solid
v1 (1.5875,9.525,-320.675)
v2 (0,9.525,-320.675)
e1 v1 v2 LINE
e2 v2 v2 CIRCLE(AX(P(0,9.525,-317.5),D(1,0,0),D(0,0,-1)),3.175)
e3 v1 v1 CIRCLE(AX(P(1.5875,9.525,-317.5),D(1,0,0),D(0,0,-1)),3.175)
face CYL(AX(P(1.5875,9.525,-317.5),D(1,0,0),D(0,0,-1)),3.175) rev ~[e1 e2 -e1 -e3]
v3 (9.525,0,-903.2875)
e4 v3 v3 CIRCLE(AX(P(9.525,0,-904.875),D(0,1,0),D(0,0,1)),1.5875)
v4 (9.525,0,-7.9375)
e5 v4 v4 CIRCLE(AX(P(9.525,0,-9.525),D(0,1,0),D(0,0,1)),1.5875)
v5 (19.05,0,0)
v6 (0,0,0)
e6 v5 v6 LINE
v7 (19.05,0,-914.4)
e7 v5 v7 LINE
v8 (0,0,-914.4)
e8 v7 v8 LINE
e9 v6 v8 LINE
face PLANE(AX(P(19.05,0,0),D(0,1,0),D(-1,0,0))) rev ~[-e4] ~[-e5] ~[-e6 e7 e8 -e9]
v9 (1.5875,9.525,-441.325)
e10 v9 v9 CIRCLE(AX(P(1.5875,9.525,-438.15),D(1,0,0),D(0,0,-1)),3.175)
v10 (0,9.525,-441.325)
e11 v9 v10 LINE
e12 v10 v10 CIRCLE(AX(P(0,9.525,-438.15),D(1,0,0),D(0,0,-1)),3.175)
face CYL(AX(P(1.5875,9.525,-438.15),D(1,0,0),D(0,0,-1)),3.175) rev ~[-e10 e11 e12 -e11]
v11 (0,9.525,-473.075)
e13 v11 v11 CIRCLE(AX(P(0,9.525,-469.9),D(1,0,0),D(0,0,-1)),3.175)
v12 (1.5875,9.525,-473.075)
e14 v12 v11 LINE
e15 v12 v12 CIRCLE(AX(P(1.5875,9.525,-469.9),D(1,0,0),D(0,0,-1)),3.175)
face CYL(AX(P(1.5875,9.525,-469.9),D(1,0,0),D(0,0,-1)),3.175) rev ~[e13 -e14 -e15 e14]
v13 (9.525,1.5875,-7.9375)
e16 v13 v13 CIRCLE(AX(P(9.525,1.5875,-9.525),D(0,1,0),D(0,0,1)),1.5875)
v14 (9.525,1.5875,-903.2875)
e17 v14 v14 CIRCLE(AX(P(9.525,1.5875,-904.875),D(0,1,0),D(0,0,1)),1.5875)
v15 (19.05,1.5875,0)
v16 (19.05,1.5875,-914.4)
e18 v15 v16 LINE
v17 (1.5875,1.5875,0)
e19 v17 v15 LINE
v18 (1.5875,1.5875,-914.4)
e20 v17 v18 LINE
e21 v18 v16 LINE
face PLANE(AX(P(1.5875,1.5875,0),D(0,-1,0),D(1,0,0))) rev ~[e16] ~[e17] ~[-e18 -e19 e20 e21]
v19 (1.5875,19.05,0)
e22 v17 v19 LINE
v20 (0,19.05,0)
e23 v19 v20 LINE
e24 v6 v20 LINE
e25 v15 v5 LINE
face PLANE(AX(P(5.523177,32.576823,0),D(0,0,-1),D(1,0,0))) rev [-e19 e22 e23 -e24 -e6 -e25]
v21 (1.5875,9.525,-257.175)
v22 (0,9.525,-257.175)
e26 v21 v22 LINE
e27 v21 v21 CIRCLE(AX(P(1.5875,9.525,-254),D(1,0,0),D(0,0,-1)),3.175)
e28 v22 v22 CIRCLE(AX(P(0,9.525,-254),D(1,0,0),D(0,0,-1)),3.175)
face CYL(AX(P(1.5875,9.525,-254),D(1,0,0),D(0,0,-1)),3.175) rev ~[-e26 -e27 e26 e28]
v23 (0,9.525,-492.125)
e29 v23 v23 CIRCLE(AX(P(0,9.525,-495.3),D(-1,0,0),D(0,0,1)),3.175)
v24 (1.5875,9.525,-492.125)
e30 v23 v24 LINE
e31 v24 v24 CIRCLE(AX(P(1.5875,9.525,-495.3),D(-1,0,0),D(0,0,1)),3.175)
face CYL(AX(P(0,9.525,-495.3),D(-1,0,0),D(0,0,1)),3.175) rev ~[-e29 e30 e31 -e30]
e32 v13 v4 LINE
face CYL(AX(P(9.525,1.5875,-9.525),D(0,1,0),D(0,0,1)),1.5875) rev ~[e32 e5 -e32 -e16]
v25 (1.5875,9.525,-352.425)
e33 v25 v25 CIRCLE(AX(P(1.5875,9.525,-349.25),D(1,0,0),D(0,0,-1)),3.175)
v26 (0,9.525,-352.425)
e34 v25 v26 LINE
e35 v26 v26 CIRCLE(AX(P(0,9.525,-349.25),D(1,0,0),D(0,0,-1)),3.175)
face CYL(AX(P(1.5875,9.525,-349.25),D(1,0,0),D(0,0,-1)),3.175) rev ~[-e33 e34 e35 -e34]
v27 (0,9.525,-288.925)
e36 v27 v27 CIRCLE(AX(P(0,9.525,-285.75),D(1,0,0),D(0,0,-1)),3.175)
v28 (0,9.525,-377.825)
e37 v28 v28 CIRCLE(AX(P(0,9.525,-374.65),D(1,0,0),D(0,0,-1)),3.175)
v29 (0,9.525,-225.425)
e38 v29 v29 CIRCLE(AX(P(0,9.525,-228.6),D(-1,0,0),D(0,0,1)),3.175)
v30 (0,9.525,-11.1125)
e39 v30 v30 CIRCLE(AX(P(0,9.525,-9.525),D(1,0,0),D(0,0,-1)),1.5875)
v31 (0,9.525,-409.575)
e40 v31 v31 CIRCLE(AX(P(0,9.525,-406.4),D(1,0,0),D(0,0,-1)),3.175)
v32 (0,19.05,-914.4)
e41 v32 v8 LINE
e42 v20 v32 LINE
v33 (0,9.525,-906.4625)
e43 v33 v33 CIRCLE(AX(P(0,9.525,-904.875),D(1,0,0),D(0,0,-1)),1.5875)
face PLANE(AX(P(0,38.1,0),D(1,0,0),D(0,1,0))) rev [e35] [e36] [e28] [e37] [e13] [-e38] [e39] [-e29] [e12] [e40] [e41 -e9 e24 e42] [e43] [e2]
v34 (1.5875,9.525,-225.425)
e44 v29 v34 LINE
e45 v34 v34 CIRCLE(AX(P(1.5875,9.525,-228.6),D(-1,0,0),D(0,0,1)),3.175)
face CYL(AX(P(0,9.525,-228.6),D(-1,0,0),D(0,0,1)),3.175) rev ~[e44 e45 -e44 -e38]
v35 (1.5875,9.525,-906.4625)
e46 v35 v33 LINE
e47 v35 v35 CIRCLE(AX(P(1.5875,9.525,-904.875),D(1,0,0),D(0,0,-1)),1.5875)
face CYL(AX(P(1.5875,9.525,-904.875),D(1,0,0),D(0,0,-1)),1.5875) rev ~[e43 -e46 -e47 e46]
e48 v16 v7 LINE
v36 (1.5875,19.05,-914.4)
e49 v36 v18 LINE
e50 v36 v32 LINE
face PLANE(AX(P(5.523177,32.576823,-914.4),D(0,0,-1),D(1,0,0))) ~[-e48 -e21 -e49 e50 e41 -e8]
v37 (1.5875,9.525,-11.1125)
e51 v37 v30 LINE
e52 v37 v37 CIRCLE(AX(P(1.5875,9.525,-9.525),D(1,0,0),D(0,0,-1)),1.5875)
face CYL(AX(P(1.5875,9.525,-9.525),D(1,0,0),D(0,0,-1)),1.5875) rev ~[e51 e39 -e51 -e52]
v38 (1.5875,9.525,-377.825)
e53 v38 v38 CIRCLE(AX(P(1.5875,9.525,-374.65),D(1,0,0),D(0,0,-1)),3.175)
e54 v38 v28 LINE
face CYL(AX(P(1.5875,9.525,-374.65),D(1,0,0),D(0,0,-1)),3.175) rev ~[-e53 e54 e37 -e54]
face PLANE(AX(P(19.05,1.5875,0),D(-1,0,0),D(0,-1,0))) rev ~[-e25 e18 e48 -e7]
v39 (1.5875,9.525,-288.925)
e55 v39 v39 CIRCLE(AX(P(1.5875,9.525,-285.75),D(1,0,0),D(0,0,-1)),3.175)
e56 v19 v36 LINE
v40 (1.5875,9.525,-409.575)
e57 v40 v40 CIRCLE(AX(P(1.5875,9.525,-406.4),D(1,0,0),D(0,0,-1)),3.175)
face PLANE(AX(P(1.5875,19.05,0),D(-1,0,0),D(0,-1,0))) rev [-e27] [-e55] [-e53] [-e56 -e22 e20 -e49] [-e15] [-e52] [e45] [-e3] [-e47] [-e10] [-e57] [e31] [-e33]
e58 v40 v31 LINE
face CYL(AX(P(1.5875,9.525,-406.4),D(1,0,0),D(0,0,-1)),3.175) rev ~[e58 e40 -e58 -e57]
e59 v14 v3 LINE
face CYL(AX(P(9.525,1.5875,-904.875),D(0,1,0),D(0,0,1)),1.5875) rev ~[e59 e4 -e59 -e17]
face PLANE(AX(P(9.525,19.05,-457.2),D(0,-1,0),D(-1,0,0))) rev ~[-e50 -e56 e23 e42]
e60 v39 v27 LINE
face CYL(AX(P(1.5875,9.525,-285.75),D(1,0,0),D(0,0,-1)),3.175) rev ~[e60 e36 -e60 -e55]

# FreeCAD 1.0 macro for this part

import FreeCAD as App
import Part
import Sketcher
Q = App.Units.Quantity

doc = App.newDocument("Part")
body = doc.addObject("PartDesign::Body", "Body")

# Sketch on XY plane
sketch1 = body.newObject("Sketcher::SketchObject", "Sketch")
sketch1.AttachmentSupport = (doc.getObject("XY_Plane"), [""])
sketch1.MapMode = "FlatFace"
sketch1.addGeometry(Part.LineSegment(App.Vector(0, 19.1, 0), App.Vector(0, 0, 0)), False)
sketch1.addGeometry(Part.LineSegment(App.Vector(0, 0, 0), App.Vector(19.1, 0, 0)), False)
sketch1.addGeometry(Part.LineSegment(App.Vector(19.1, 0, 0), App.Vector(19.1, 1.6, 0)), False)
sketch1.addGeometry(Part.LineSegment(App.Vector(19.1, 1.6, 0), App.Vector(1.6, 1.6, 0)), False)
sketch1.addGeometry(Part.LineSegment(App.Vector(1.6, 1.6, 0), App.Vector(1.6, 19.1, 0)), False)
sketch1.addGeometry(Part.LineSegment(App.Vector(1.6, 19.1, 0), App.Vector(0, 19.1, 0)), False)
sketch1.addConstraint(Sketcher.Constraint("Coincident", 0, 2, 1, 1))
sketch1.addConstraint(Sketcher.Constraint("Coincident", 1, 2, 2, 1))
sketch1.addConstraint(Sketcher.Constraint("Coincident", 2, 2, 3, 1))
sketch1.addConstraint(Sketcher.Constraint("Coincident", 3, 2, 4, 1))
sketch1.addConstraint(Sketcher.Constraint("Coincident", 4, 2, 5, 1))
sketch1.addConstraint(Sketcher.Constraint("Coincident", 5, 2, 0, 1))
sketch1.addConstraint(Sketcher.Constraint("Vertical", 0))
sketch1.addConstraint(Sketcher.Constraint("Horizontal", 1))
sketch1.addConstraint(Sketcher.Constraint("Vertical", 2))
sketch1.addConstraint(Sketcher.Constraint("Horizontal", 3))
sketch1.addConstraint(Sketcher.Constraint("Vertical", 4))
sketch1.addConstraint(Sketcher.Constraint("Horizontal", 5))
sketch1.addConstraint(Sketcher.Constraint("Coincident", 0, 2, -1, 1))
sketch1.addConstraint(Sketcher.Constraint("Equal", 1, 0))
sketch1.addConstraint(Sketcher.Constraint("Equal", 5, 2))
sketch1.addConstraint(Sketcher.Constraint("DistanceX", 1, 1, 1, 2, Q("0.75 in")))
sketch1.addConstraint(Sketcher.Constraint("DistanceX", 3, 2, 3, 1, Q("0.6875 in")))
pad1 = body.newObject("PartDesign::Pad", "Pad")
pad1.Profile = sketch1
pad1.Length = Q("36 in")
pad1.Reversed = True

# Sketch on XZ plane
sketch2 = body.newObject("Sketcher::SketchObject", "Sketch001")
sketch2.AttachmentSupport = (doc.getObject("XZ_Plane"), [""])
sketch2.MapMode = "FlatFace"
sketch2.AttachmentOffset = App.Placement(App.Vector(0, 0, -0.0625 * 25.4), App.Rotation())
sketch2.addGeometry(Part.Circle(App.Vector(9.5, -9.5, 0), App.Vector(0, 0, 1), 1.6), False)
sketch2.addGeometry(Part.Circle(App.Vector(9.5, -904.9, 0), App.Vector(0, 0, 1), 1.6), False)
sketch2.addConstraint(Sketcher.Constraint("Equal", 0, 1))
sketch2.addConstraint(Sketcher.Constraint("Vertical", 0, 3, 1, 3))
sketch2.addConstraint(Sketcher.Constraint("Diameter", 0, Q("0.125 in")))
sketch2.addConstraint(Sketcher.Constraint("DistanceY", 1, 3, 0, 3, Q("35.25 in")))
sketch2.addConstraint(Sketcher.Constraint("DistanceX", -1, 1, 0, 3, Q("0.375 in")))
sketch2.addConstraint(Sketcher.Constraint("DistanceY", 0, 3, -1, 1, Q("0.375 in")))
pocket1 = body.newObject("PartDesign::Pocket", "Pocket")
pocket1.Profile = sketch2
pocket1.Length = Q("0.11 in")
pocket1.Reversed = True

# Sketch on YZ plane
sketch3 = body.newObject("Sketcher::SketchObject", "Sketch002")
sketch3.AttachmentSupport = (doc.getObject("YZ_Plane"), [""])
sketch3.MapMode = "FlatFace"
sketch3.AttachmentOffset = App.Placement(App.Vector(0, 0, 0.0625 * 25.4), App.Rotation())
sketch3.addGeometry(Part.Circle(App.Vector(9.5, -9.5, 0), App.Vector(0, 0, 1), 1.6), False)
sketch3.addGeometry(Part.Circle(App.Vector(9.5, -904.9, 0), App.Vector(0, 0, 1), 1.6), False)
sketch3.addGeometry(Part.Circle(App.Vector(9.5, -254, 0), App.Vector(0, 0, 1), 3.2), False)
sketch3.addGeometry(Part.Circle(App.Vector(9.5, -285.8, 0), App.Vector(0, 0, 1), 3.2), False)
sketch3.addGeometry(Part.Circle(App.Vector(9.5, -317.5, 0), App.Vector(0, 0, 1), 3.2), False)
sketch3.addGeometry(Part.Circle(App.Vector(9.5, -349.2, 0), App.Vector(0, 0, 1), 3.2), False)
sketch3.addGeometry(Part.Circle(App.Vector(9.5, -469.9, 0), App.Vector(0, 0, 1), 3.2), False)
sketch3.addGeometry(Part.Circle(App.Vector(9.5, -406.4, 0), App.Vector(0, 0, 1), 3.2), False)
sketch3.addGeometry(Part.Circle(App.Vector(9.5, -438.1, 0), App.Vector(0, 0, 1), 3.2), False)
sketch3.addGeometry(Part.Circle(App.Vector(9.5, -374.6, 0), App.Vector(0, 0, 1), 3.2), False)
sketch3.addConstraint(Sketcher.Constraint("Equal", 0, 1))
sketch3.addConstraint(Sketcher.Constraint("Equal", 2, 3))
sketch3.addConstraint(Sketcher.Constraint("Equal", 3, 4))
sketch3.addConstraint(Sketcher.Constraint("Equal", 4, 5))
sketch3.addConstraint(Sketcher.Constraint("Equal", 5, 6))
sketch3.addConstraint(Sketcher.Constraint("Equal", 6, 7))
sketch3.addConstraint(Sketcher.Constraint("Equal", 7, 8))
sketch3.addConstraint(Sketcher.Constraint("Equal", 8, 9))
sketch3.addConstraint(Sketcher.Constraint("Vertical", 0, 3, 1, 3))
sketch3.addConstraint(Sketcher.Constraint("Vertical", 1, 3, 2, 3))
sketch3.addConstraint(Sketcher.Constraint("Vertical", 2, 3, 3, 3))
sketch3.addConstraint(Sketcher.Constraint("Vertical", 3, 3, 4, 3))
sketch3.addConstraint(Sketcher.Constraint("Vertical", 4, 3, 5, 3))
sketch3.addConstraint(Sketcher.Constraint("Vertical", 5, 3, 6, 3))
sketch3.addConstraint(Sketcher.Constraint("Vertical", 6, 3, 7, 3))
sketch3.addConstraint(Sketcher.Constraint("Vertical", 7, 3, 8, 3))
sketch3.addConstraint(Sketcher.Constraint("Vertical", 8, 3, 9, 3))
sketch3.addConstraint(Sketcher.Constraint("Diameter", 2, Q("0.25 in")))
sketch3.addConstraint(Sketcher.Constraint("Diameter", 0, Q("0.125 in")))
sketch3.addConstraint(Sketcher.Constraint("DistanceY", 2, 3, -1, 1, Q("10 in")))
sketch3.addConstraint(Sketcher.Constraint("DistanceY", 7, 3, -1, 1, Q("16 in")))
sketch3.addConstraint(Sketcher.Constraint("DistanceY", 6, 3, 4, 3, Q("6 in")))
sketch3.addConstraint(Sketcher.Constraint("DistanceY", 8, 3, 3, 3, Q("6 in")))
sketch3.addConstraint(Sketcher.Constraint("DistanceY", 9, 3, 5, 3, Q("1 in")))
sketch3.addConstraint(Sketcher.Constraint("DistanceY", 4, 3, -1, 1, Q("12.5 in")))
sketch3.addConstraint(Sketcher.Constraint("DistanceY", 5, 3, 3, 3, Q("2.5 in")))
sketch3.addConstraint(Sketcher.Constraint("DistanceY", 3, 3, -1, 1, Q("11.25 in")))
sketch3.addConstraint(Sketcher.Constraint("DistanceY", 1, 3, 0, 3, Q("35.25 in")))
sketch3.addConstraint(Sketcher.Constraint("DistanceX", -1, 1, 0, 3, Q("0.375 in")))
sketch3.addConstraint(Sketcher.Constraint("DistanceY", 0, 3, -1, 1, Q("0.375 in")))
pocket2 = body.newObject("PartDesign::Pocket", "Pocket001")
pocket2.Profile = sketch3
pocket2.Length = Q("0.35 in")
doc.recompute()

datumplane = body.newObject("PartDesign::Plane", "DatumPlane")
datumplane.AttachmentSupport = (doc.getObject("XZ_Plane"), [""])
datumplane.MapMode = "FlatFace"
datumplane.AttachmentOffset = App.Placement(App.Vector(0, 0, -0.75 * 25.4), App.Rotation())
mirrored = body.newObject("PartDesign::Mirrored", "Mirrored")
mirrored.Originals = [pad1, pocket1, pocket2]
mirrored.MirrorPlane = (datumplane, [""])
body.Tip = mirrored

# Sketch on XZ plane
sketch4 = body.newObject("Sketcher::SketchObject", "Sketch003")
sketch4.AttachmentSupport = (doc.getObject("XZ_Plane"), [""])
sketch4.MapMode = "FlatFace"
sketch4.AttachmentOffset = App.Placement(App.Vector(0, 0, -0.75 * 25.4), App.Rotation())
sketch4.addGeometry(Part.LineSegment(App.Vector(19, -914, 0), App.Vector(19, 0, 0)), False)
sketch4.addGeometry(Part.LineSegment(App.Vector(19, 0, 0), App.Vector(0, 0, 0)), False)
sketch4.addGeometry(Part.LineSegment(App.Vector(0, 0, 0), App.Vector(0, -914, 0)), False)
sketch4.addGeometry(Part.LineSegment(App.Vector(0, -914, 0), App.Vector(19, -914, 0)), False)
sketch4.addConstraint(Sketcher.Constraint("Coincident", 0, 2, 1, 1))
sketch4.addConstraint(Sketcher.Constraint("Coincident", 1, 2, 2, 1))
sketch4.addConstraint(Sketcher.Constraint("Coincident", 2, 2, 3, 1))
sketch4.addConstraint(Sketcher.Constraint("Coincident", 3, 2, 0, 1))
sketch4.addConstraint(Sketcher.Constraint("Vertical", 0))
sketch4.addConstraint(Sketcher.Constraint("Horizontal", 1))
sketch4.addConstraint(Sketcher.Constraint("Vertical", 2))
sketch4.addConstraint(Sketcher.Constraint("Horizontal", 3))
sketch4.addConstraint(Sketcher.Constraint("Coincident", 1, 2, -1, 1))
sketch4.addConstraint(Sketcher.Constraint("DistanceY", 0, 1, 0, 2, Q("36 in")))
sketch4.addConstraint(Sketcher.Constraint("DistanceX", 1, 2, 1, 1, Q("0.75 in")))
pocket3 = body.newObject("PartDesign::Pocket", "Pocket002")
pocket3.Profile = sketch4
pocket3.Type = "ThroughAll"

# Sketch on YZ plane
sketch5 = body.newObject("Sketcher::SketchObject", "Sketch004")
sketch5.AttachmentSupport = (doc.getObject("YZ_Plane"), [""])
sketch5.MapMode = "FlatFace"
sketch5.addGeometry(Part.Circle(App.Vector(9.5, -228.6, 0), App.Vector(0, 0, 1), 3.2), False)
sketch5.addConstraint(Sketcher.Constraint("Diameter", 0, Q("0.25 in")))
sketch5.addConstraint(Sketcher.Constraint("DistanceY", 0, 3, -1, 1, Q("9 in")))
sketch5.addConstraint(Sketcher.Constraint("DistanceX", -1, 1, 0, 3, Q("0.375 in")))
pocket4 = body.newObject("PartDesign::Pocket", "Pocket003")
pocket4.Profile = sketch5
pocket4.Type = "UpToFirst"
pocket4.Reversed = True

# Sketch on YZ plane
sketch6 = body.newObject("Sketcher::SketchObject", "Sketch005")
sketch6.AttachmentSupport = (doc.getObject("YZ_Plane"), [""])
sketch6.MapMode = "FlatFace"
sketch6.addGeometry(Part.Circle(App.Vector(9.5, -495.3, 0), App.Vector(0, 0, 1), 3.2), False)
sketch6.addConstraint(Sketcher.Constraint("Diameter", 0, Q("0.25 in")))
sketch6.addConstraint(Sketcher.Constraint("DistanceY", 0, 3, -1, 1, Q("19.5 in")))
sketch6.addConstraint(Sketcher.Constraint("DistanceX", -1, 1, 0, 3, Q("0.375 in")))
pocket5 = body.newObject("PartDesign::Pocket", "Pocket004")
pocket5.Profile = sketch6
pocket5.Type = "UpToFirst"
pocket5.Reversed = True

doc.recompute()
